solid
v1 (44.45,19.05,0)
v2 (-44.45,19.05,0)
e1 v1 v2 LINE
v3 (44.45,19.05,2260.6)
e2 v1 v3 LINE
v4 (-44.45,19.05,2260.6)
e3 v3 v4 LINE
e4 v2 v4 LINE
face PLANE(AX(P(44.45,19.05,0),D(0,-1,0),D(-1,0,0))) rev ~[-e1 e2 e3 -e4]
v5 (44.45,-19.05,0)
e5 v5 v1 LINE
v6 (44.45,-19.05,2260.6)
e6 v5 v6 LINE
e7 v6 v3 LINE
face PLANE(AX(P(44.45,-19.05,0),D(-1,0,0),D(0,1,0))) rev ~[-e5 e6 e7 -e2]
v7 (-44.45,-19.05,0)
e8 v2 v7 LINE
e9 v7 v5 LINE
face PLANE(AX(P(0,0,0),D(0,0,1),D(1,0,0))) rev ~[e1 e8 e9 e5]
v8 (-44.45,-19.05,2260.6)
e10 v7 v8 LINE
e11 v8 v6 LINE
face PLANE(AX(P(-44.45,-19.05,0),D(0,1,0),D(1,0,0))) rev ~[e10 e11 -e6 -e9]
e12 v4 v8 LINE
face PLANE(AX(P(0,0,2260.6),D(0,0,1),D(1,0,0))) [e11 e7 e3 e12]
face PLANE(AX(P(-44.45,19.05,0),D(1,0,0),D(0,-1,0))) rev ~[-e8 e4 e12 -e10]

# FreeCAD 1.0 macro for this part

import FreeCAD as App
import Part
import Sketcher

V = App.Vector
Q = App.Units.Quantity


def add_polygon(sketch, points):
    """Adds a closed chain of lines whose ends are joined by coincident constraints."""
    first, n = sketch.GeometryCount, len(points)
    for a, b in zip(points, points[1:] + points[:1]):
        sketch.addGeometry(Part.LineSegment(App.Vector(*a, 0), App.Vector(*b, 0)), False)
    for i in range(n):
        sketch.addConstraint(Sketcher.Constraint("Coincident", first + i, 2, first + (i + 1) % n, 1))

doc = App.newDocument("Part")
body = doc.addObject("PartDesign::Body", "Body")

sketch1 = body.newObject("Sketcher::SketchObject", "Sketch")
sketch1.AttachmentSupport = (doc.getObject("XY_Plane"), [""])
sketch1.MapMode = "FlatFace"
add_polygon(sketch1, [(-44, 19), (-44, -19), (44, -19), (44, 19)])
sketch1.addConstraint(Sketcher.Constraint("Vertical", 0))
sketch1.addConstraint(Sketcher.Constraint("Horizontal", 1))
sketch1.addConstraint(Sketcher.Constraint("Vertical", 2))
sketch1.addConstraint(Sketcher.Constraint("Horizontal", 3))
sketch1.addConstraint(Sketcher.Constraint("Symmetric", 0, 2, 2, 2, -1, 1))
sketch1.addConstraint(Sketcher.Constraint("DistanceX", 1, 1, 1, 2, Q("3.5 in")))
sketch1.addConstraint(Sketcher.Constraint("DistanceY", 0, 2, 0, 1, Q("1.5 in")))
pad1 = body.newObject("PartDesign::Pad", "Pad")
pad1.Profile = sketch1
pad1.Length = Q("89 in")

doc.recompute()
